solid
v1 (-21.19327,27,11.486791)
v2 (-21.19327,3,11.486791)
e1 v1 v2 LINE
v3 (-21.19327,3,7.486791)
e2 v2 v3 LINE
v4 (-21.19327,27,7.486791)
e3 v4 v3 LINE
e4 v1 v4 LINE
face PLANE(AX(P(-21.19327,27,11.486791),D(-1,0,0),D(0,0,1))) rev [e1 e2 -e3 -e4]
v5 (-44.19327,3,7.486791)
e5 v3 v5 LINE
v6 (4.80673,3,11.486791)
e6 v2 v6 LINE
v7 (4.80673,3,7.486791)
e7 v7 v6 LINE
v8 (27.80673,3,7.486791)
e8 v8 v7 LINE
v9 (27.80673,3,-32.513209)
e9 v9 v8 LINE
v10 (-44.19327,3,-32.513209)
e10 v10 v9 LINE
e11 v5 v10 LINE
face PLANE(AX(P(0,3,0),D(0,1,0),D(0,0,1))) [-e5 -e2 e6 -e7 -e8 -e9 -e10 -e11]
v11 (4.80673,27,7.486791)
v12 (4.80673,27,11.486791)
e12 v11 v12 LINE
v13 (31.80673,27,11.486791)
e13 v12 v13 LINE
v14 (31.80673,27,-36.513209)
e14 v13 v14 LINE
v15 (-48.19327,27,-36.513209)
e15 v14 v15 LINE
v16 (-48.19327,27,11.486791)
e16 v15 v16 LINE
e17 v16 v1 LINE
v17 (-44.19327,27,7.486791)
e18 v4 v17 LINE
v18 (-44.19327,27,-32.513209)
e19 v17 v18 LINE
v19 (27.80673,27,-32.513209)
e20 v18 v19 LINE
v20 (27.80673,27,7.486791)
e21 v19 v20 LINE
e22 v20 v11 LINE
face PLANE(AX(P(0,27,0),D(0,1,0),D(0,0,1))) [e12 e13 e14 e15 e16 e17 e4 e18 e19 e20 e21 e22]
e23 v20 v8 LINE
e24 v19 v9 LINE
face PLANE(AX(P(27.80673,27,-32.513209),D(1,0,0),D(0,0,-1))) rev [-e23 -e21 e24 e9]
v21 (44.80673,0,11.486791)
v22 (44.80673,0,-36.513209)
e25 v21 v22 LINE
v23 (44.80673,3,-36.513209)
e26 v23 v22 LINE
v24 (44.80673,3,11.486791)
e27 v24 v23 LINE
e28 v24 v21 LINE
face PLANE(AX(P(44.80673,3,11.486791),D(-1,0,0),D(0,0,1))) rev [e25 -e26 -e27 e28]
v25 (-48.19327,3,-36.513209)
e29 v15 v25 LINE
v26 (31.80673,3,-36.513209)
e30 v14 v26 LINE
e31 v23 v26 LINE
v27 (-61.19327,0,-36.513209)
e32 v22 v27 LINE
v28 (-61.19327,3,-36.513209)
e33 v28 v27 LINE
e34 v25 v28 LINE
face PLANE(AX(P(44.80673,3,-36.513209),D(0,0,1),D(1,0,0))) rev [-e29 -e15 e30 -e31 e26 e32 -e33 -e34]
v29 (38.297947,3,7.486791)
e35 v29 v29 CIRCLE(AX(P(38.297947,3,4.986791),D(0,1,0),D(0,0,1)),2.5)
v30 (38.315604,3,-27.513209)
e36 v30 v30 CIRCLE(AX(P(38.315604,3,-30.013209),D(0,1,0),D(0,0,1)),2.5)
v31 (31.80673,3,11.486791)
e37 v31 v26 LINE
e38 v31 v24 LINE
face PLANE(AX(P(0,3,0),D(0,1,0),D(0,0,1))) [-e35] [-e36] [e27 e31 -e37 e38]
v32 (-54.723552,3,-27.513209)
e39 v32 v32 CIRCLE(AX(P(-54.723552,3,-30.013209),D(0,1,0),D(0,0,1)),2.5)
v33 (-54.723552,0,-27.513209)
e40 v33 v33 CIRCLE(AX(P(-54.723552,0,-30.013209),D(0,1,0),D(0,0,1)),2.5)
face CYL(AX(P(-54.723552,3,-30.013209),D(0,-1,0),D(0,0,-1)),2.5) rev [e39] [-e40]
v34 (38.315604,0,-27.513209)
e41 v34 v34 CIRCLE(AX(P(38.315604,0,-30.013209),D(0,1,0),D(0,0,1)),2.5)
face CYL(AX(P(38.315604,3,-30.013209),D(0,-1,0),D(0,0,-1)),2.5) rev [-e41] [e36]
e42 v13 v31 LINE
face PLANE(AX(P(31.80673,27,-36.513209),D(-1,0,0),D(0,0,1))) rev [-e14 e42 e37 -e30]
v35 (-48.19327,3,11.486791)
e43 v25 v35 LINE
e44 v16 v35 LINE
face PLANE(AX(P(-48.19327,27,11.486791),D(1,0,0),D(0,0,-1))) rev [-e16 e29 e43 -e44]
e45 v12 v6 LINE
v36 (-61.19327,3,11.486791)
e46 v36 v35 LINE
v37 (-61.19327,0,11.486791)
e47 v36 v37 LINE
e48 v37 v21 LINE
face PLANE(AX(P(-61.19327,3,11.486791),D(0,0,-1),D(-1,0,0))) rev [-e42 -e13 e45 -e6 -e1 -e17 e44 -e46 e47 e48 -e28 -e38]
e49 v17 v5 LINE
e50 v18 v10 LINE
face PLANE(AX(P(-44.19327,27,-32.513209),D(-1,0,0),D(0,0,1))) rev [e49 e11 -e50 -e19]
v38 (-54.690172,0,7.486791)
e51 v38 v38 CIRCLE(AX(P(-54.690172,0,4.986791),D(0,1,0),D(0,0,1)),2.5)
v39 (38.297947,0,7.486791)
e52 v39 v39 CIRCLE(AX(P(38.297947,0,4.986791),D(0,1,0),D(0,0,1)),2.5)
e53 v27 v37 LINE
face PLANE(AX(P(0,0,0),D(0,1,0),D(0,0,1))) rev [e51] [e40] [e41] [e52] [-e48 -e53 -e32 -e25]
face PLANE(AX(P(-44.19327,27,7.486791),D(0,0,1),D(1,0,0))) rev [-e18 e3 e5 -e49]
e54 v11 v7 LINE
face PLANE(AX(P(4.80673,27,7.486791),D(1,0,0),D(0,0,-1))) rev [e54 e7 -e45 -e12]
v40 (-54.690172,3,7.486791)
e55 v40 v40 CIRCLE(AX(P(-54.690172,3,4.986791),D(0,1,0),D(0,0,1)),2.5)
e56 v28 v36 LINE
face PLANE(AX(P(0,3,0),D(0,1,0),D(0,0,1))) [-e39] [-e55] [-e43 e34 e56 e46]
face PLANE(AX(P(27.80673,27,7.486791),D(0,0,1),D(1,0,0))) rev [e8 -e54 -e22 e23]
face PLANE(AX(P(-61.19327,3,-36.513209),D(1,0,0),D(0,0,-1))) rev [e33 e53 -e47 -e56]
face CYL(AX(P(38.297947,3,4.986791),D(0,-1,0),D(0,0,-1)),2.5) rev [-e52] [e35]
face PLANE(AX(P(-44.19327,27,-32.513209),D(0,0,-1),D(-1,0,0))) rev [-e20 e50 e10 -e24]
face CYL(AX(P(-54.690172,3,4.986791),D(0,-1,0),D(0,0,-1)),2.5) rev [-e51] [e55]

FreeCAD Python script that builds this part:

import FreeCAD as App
import Part
import Sketcher

doc = App.newDocument("Part")
body = doc.addObject("PartDesign::Body", "Body")

# Sketch on XZ plane
sketch1 = body.newObject("Sketcher::SketchObject", "Sketch")
sketch1.AttachmentSupport = (doc.getObject("XZ_Plane"), [""])
sketch1.MapMode = "FlatFace"
sketch1.addGeometry([
    Part.LineSegment(App.Vector(-61.2, -36.5, 0), App.Vector(-61.2, 11.5, 0)),  # 0
    Part.LineSegment(App.Vector(-61.2, 11.5, 0), App.Vector(44.8, 11.5, 0)),  # 1
    Part.LineSegment(App.Vector(44.8, 11.5, 0), App.Vector(44.8, -36.5, 0)),  # 2
    Part.LineSegment(App.Vector(44.8, -36.5, 0), App.Vector(-61.2, -36.5, 0)),  # 3
    Part.Circle(App.Vector(-54.7, 5, 0), App.Vector(0, 0, 1), 2.5),  # 4
    Part.Circle(App.Vector(38.3, 5, 0), App.Vector(0, 0, 1), 2.5),  # 5
    Part.Circle(App.Vector(-54.7, -30, 0), App.Vector(0, 0, 1), 2.5),  # 6
    Part.Circle(App.Vector(38.3, -30, 0), App.Vector(0, 0, 1), 2.5),  # 7
], False)
sketch1.addConstraint([
    Sketcher.Constraint("Coincident", 0, 2, 1, 1),
    Sketcher.Constraint("Coincident", 1, 2, 2, 1),
    Sketcher.Constraint("Coincident", 2, 2, 3, 1),
    Sketcher.Constraint("Coincident", 3, 2, 0, 1),
    Sketcher.Constraint("Vertical", 0),
    Sketcher.Constraint("Horizontal", 1),
    Sketcher.Constraint("Vertical", 2),
    Sketcher.Constraint("Horizontal", 3),
    Sketcher.Constraint("Equal", 4, 5),
    Sketcher.Constraint("Equal", 5, 6),
    Sketcher.Constraint("Equal", 6, 7),
    Sketcher.Constraint("Horizontal", 4, 3, 5, 3),
    Sketcher.Constraint("Horizontal", 6, 3, 7, 3),
    Sketcher.Constraint("Diameter", 4, 5.0),
    Sketcher.Constraint("DistanceX", 1, 1, 1, 2, 106.0),
    Sketcher.Constraint("DistanceY", 0, 1, 0, 2, 48.0),
    Sketcher.Constraint("DistanceY", 6, 3, 4, 3, 35.0),
    Sketcher.Constraint("DistanceY", 4, 3, 0, 2, 6.5),
    Sketcher.Constraint("DistanceX", 6, 3, 5, 3, 93.021499),
    Sketcher.Constraint("DistanceX", 0, 2, 4, 3, 6.503099),
    Sketcher.Constraint("DistanceX", 4, 3, -1, 1, 54.690172),
    Sketcher.Constraint("DistanceY", -1, 1, 4, 3, 4.986791),
    Sketcher.Constraint("DistanceX", 6, 3, -1, 1, 54.723552),
    Sketcher.Constraint("DistanceX", -1, 1, 7, 3, 38.315604),
])
pad1 = body.newObject("PartDesign::Pad", "Pad")
pad1.Profile = sketch1
pad1.Length = 3
pad1.Reversed = True

# Sketch on XZ plane
sketch2 = body.newObject("Sketcher::SketchObject", "Sketch001")
sketch2.AttachmentSupport = (doc.getObject("XZ_Plane"), [""])
sketch2.MapMode = "FlatFace"
sketch2.AttachmentOffset = App.Placement(App.Vector(0, 0, -3), App.Rotation())
sketch2.addGeometry([
    Part.LineSegment(App.Vector(-44.2, 7.5, 0), App.Vector(-44.2, -32.5, 0)),  # 0
    Part.LineSegment(App.Vector(-44.2, -32.5, 0), App.Vector(27.8, -32.5, 0)),  # 1
    Part.LineSegment(App.Vector(27.8, -32.5, 0), App.Vector(27.8, 7.5, 0)),  # 2
    Part.LineSegment(App.Vector(27.8, 7.5, 0), App.Vector(4.8, 7.5, 0)),  # 3
    Part.LineSegment(App.Vector(4.8, 7.5, 0), App.Vector(4.8, 11.5, 0)),  # 4
    Part.LineSegment(App.Vector(4.8, 11.5, 0), App.Vector(31.8, 11.5, 0)),  # 5
    Part.LineSegment(App.Vector(31.8, 11.5, 0), App.Vector(31.8, -36.5, 0)),  # 6
    Part.LineSegment(App.Vector(31.8, -36.5, 0), App.Vector(-48.2, -36.5, 0)),  # 7
    Part.LineSegment(App.Vector(-48.2, -36.5, 0), App.Vector(-48.2, 11.5, 0)),  # 8
    Part.LineSegment(App.Vector(-48.2, 11.5, 0), App.Vector(-21.2, 11.5, 0)),  # 9
    Part.LineSegment(App.Vector(-21.2, 11.5, 0), App.Vector(-21.2, 7.5, 0)),  # 10
    Part.LineSegment(App.Vector(-21.2, 7.5, 0), App.Vector(-44.2, 7.5, 0)),  # 11
], False)
sketch2.addConstraint([
    Sketcher.Constraint("Coincident", 0, 2, 1, 1),
    Sketcher.Constraint("Coincident", 1, 2, 2, 1),
    Sketcher.Constraint("Coincident", 2, 2, 3, 1),
    Sketcher.Constraint("Coincident", 3, 2, 4, 1),
    Sketcher.Constraint("Coincident", 4, 2, 5, 1),
    Sketcher.Constraint("Coincident", 5, 2, 6, 1),
    Sketcher.Constraint("Coincident", 6, 2, 7, 1),
    Sketcher.Constraint("Coincident", 7, 2, 8, 1),
    Sketcher.Constraint("Coincident", 8, 2, 9, 1),
    Sketcher.Constraint("Coincident", 9, 2, 10, 1),
    Sketcher.Constraint("Coincident", 10, 2, 11, 1),
    Sketcher.Constraint("Coincident", 11, 2, 0, 1),
    Sketcher.Constraint("Vertical", 0),
    Sketcher.Constraint("Horizontal", 1),
    Sketcher.Constraint("Vertical", 2),
    Sketcher.Constraint("Horizontal", 3),
    Sketcher.Constraint("Vertical", 4),
    Sketcher.Constraint("Horizontal", 5),
    Sketcher.Constraint("Vertical", 6),
    Sketcher.Constraint("Horizontal", 7),
    Sketcher.Constraint("Vertical", 8),
    Sketcher.Constraint("Horizontal", 9),
    Sketcher.Constraint("Vertical", 10),
    Sketcher.Constraint("Horizontal", 11),
    Sketcher.Constraint("Horizontal", 5, 2, 8, 2),
    Sketcher.Constraint("Horizontal", 3, 2, 10, 2),
    Sketcher.Constraint("Equal", 5, 9),
    Sketcher.Constraint("Equal", 3, 11),
    Sketcher.Constraint("DistanceX", 1, 1, 1, 2, 72.0),
    Sketcher.Constraint("DistanceX", 3, 2, 3, 1, 23.0),
    Sketcher.Constraint("DistanceX", 5, 1, 5, 2, 27.0),
    Sketcher.Constraint("DistanceY", 0, 2, 0, 1, 40.0),
    Sketcher.Constraint("DistanceY", 4, 1, 4, 2, 4.0),
    Sketcher.Constraint("DistanceY", 6, 2, 6, 1, 48.0),
    Sketcher.Constraint("DistanceX", 0, 2, -1, 1, 44.19327),
    Sketcher.Constraint("DistanceY", 0, 2, -1, 1, 32.513209),
])
pad2 = body.newObject("PartDesign::Pad", "Pad001")
pad2.Profile = sketch2
pad2.Length = 24
pad2.Reversed = True

doc.recompute()
